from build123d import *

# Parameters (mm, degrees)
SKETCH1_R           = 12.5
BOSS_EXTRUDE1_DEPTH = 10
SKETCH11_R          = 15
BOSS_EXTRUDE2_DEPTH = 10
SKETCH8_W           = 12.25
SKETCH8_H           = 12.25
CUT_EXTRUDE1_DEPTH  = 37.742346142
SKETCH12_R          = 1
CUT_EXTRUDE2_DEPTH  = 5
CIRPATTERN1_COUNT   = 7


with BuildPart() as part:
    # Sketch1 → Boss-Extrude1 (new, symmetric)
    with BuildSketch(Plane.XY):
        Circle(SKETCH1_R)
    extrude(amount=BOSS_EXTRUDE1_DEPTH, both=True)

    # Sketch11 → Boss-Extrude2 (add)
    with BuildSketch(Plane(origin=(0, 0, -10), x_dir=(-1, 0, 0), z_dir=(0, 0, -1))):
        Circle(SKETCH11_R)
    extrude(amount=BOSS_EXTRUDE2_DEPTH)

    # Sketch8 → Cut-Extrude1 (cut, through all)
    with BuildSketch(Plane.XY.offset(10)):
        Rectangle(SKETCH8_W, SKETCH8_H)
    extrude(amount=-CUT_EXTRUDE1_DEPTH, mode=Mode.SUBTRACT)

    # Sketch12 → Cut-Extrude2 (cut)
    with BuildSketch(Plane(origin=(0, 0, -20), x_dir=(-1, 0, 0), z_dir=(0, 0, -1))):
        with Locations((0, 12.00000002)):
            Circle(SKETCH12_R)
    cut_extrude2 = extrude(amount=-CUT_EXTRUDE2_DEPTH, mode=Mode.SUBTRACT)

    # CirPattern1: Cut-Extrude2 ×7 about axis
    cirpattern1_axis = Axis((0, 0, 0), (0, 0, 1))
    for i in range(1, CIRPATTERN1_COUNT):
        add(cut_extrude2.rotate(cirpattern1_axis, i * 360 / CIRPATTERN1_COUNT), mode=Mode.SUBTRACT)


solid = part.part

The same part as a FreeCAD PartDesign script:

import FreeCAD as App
import Part
import Sketcher

V = App.Vector
Q = App.Units.Quantity


def add_polygon(sketch, points):
    """Adds a closed chain of lines whose ends are joined by coincident constraints."""
    first, n = sketch.GeometryCount, len(points)
    for a, b in zip(points, points[1:] + points[:1]):
        sketch.addGeometry(Part.LineSegment(App.Vector(*a, 0), App.Vector(*b, 0)), False)
    for i in range(n):
        sketch.addConstraint(Sketcher.Constraint("Coincident", first + i, 2, first + (i + 1) % n, 1))

doc = App.newDocument("Part")
body = doc.addObject("PartDesign::Body", "Body")

# Sketch on XY plane
sketch1 = doc.addObject("Sketcher::SketchObject", "Sketch")
body.addObject(sketch1)
sketch1.AttachmentSupport = (doc.XY_Plane, [""])
sketch1.MapMode = "FlatFace"
sketch1.addGeometry(Part.Circle(V(0, 0, 0), V(0, 0, 1), 12.5), False)
sketch1.addConstraint([
    Sketcher.Constraint("Coincident", 0, 3, -1, 1),
    Sketcher.Constraint("Diameter", 0, Q("25 mm")),
])
pad1 = doc.addObject("PartDesign::Pad", "Pad")
body.addObject(pad1)
pad1.Profile = sketch1
pad1.Length = 20
pad1.Midplane = True

# Sketch on XY plane
sketch2 = doc.addObject("Sketcher::SketchObject", "Sketch001")
body.addObject(sketch2)
sketch2.AttachmentSupport = (doc.XY_Plane, [""])
sketch2.MapMode = "FlatFace"
sketch2.AttachmentOffset = App.Placement(V(0, 0, -10), App.Rotation())
sketch2.addGeometry(Part.Circle(V(0, 0, 0), V(0, 0, 1), 15), False)
sketch2.addConstraint([
    Sketcher.Constraint("Coincident", 0, 3, -1, 1),
    Sketcher.Constraint("Diameter", 0, Q("30 mm")),
])
pad2 = doc.addObject("PartDesign::Pad", "Pad001")
body.addObject(pad2)
pad2.Profile = sketch2
pad2.Length = 10
pad2.Reversed = True

# Sketch on XY plane
sketch3 = doc.addObject("Sketcher::SketchObject", "Sketch002")
body.addObject(sketch3)
sketch3.AttachmentSupport = (doc.XY_Plane, [""])
sketch3.MapMode = "FlatFace"
sketch3.AttachmentOffset = App.Placement(V(0, 0, 10), App.Rotation())
add_polygon(sketch3, [(-6.125, 6.125), (-6.125, -6.125), (6.125, -6.125), (6.125, 6.125)])  # lines 0-3
sketch3.addConstraint([
    Sketcher.Constraint("Vertical", 0),
    Sketcher.Constraint("Horizontal", 1),
    Sketcher.Constraint("Vertical", 2),
    Sketcher.Constraint("Horizontal", 3),
    Sketcher.Constraint("Symmetric", 0, 2, 2, 2, -1, 1),
    Sketcher.Constraint("Equal", 3, 0),
    Sketcher.Constraint("DistanceX", 1, 1, 1, 2, Q("12.25 mm")),
])
pocket1 = doc.addObject("PartDesign::Pocket", "Pocket")
body.addObject(pocket1)
pocket1.Profile = sketch3
pocket1.Type = "ThroughAll"

# Sketch on XY plane
sketch4 = doc.addObject("Sketcher::SketchObject", "Sketch003")
body.addObject(sketch4)
sketch4.AttachmentSupport = (doc.XY_Plane, [""])
sketch4.MapMode = "FlatFace"
sketch4.AttachmentOffset = App.Placement(V(0, 0, -20), App.Rotation())
sketch4.addGeometry(Part.Circle(V(0, 12, 0), V(0, 0, 1), 1), False)
sketch4.addConstraint([
    Sketcher.Constraint("PointOnObject", 0, 3, -2),
    Sketcher.Constraint("Diameter", 0, Q("2 mm")),
    Sketcher.Constraint("DistanceY", -1, 1, 0, 3, Q("12 mm")),
])
pocket2 = doc.addObject("PartDesign::Pocket", "Pocket001")
body.addObject(pocket2)
pocket2.Profile = sketch4
pocket2.Length = 5
pocket2.Reversed = True
doc.recompute()

polarpattern = doc.addObject("PartDesign::PolarPattern", "PolarPattern")
body.addObject(polarpattern)
polarpattern.Originals = [pocket2]
polarpattern.Axis = (doc.Z_Axis, [""])
polarpattern.Angle = 360
polarpattern.Occurrences = 7
body.Tip = polarpattern

doc.recompute()
